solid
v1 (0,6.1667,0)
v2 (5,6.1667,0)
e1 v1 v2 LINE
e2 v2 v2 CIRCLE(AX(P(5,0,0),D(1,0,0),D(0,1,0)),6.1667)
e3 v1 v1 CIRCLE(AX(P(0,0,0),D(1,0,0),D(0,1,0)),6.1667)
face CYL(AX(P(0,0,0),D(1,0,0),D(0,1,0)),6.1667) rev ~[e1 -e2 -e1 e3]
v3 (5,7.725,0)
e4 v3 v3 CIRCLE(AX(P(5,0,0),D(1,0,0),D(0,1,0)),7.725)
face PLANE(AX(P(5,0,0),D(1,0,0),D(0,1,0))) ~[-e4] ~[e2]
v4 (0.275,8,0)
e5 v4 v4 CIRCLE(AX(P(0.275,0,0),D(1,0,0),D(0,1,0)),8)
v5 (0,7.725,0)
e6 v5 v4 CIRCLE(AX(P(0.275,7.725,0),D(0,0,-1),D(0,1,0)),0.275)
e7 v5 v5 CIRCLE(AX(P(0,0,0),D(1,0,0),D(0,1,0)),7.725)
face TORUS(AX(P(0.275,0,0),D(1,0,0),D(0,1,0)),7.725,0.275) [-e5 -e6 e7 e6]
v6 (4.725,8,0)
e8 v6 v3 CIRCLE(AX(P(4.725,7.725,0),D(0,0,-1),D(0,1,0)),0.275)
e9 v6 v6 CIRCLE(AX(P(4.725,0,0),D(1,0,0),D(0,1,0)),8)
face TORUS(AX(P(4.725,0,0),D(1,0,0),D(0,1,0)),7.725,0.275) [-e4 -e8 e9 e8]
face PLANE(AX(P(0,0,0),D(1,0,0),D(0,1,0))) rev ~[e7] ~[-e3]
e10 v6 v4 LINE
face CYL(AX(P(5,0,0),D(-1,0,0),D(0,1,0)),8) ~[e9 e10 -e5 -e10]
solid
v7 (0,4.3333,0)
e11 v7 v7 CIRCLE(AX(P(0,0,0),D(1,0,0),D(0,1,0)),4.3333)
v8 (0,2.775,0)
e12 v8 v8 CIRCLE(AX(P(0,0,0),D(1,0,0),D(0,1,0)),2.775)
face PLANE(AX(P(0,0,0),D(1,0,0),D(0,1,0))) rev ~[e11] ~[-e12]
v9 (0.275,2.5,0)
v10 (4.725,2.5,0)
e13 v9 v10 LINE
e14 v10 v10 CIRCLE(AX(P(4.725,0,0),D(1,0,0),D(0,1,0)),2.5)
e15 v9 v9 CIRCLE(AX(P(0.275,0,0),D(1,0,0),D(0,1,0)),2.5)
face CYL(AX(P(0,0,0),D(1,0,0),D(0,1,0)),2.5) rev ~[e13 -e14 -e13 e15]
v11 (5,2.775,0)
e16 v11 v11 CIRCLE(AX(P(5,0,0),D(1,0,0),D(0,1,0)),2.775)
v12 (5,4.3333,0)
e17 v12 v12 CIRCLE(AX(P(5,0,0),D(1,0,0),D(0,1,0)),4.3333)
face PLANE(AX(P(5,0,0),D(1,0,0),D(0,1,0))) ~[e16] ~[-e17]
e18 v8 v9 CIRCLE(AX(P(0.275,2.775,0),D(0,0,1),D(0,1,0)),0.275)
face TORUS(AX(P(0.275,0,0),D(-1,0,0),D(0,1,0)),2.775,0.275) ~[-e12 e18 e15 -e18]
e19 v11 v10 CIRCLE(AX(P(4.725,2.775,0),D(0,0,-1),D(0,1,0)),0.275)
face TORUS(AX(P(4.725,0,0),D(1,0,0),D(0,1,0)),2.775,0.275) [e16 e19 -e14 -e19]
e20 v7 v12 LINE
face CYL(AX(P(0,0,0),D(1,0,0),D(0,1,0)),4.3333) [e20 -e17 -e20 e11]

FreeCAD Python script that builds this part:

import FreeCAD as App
import Part
import Sketcher
Q = App.Units.Quantity


def edges_at(feature, points):
    """Names of the edges that pass closest to the given points."""
    edges = feature.Shape.Edges
    near = lambda p: min(range(len(edges)), key=lambda i: edges[i].distToShape(Part.Vertex(*p))[0])
    return sorted({f"Edge{near(p) + 1}" for p in points})

doc = App.newDocument("Part")
body = doc.addObject("PartDesign::Body", "Body")
body.AllowCompound = True

# Sketch on XY plane
sketch1 = body.newObject("Sketcher::SketchObject", "Sketch")
sketch1.AttachmentSupport = (doc.getObject("XY_Plane"), [""])
sketch1.MapMode = "FlatFace"
sketch1.addGeometry([
    Part.LineSegment(App.Vector(0, 4.3333, 0), App.Vector(0, 2.5, 0)),  # 0
    Part.LineSegment(App.Vector(0, 2.5, 0), App.Vector(5, 2.5, 0)),  # 1
    Part.LineSegment(App.Vector(5, 2.5, 0), App.Vector(5, 4.3333, 0)),  # 2
    Part.LineSegment(App.Vector(5, 4.3333, 0), App.Vector(0, 4.3333, 0)),  # 3
    Part.LineSegment(App.Vector(0, 8, 0), App.Vector(0, 6.1667, 0)),  # 4
    Part.LineSegment(App.Vector(0, 6.1667, 0), App.Vector(5, 6.1667, 0)),  # 5
    Part.LineSegment(App.Vector(5, 6.1667, 0), App.Vector(5, 8, 0)),  # 6
    Part.LineSegment(App.Vector(5, 8, 0), App.Vector(0, 8, 0)),  # 7
], False)
sketch1.addConstraint([
    Sketcher.Constraint("Coincident", 0, 2, 1, 1),
    Sketcher.Constraint("Coincident", 1, 2, 2, 1),
    Sketcher.Constraint("Coincident", 2, 2, 3, 1),
    Sketcher.Constraint("Coincident", 3, 2, 0, 1),
    Sketcher.Constraint("Coincident", 4, 2, 5, 1),
    Sketcher.Constraint("Coincident", 5, 2, 6, 1),
    Sketcher.Constraint("Coincident", 6, 2, 7, 1),
    Sketcher.Constraint("Coincident", 7, 2, 4, 1),
    Sketcher.Constraint("Vertical", 0),
    Sketcher.Constraint("Horizontal", 1),
    Sketcher.Constraint("Vertical", 2),
    Sketcher.Constraint("Horizontal", 3),
    Sketcher.Constraint("Vertical", 4),
    Sketcher.Constraint("Horizontal", 5),
    Sketcher.Constraint("Vertical", 6),
    Sketcher.Constraint("Horizontal", 7),
    Sketcher.Constraint("PointOnObject", 0, 2, -2),
    Sketcher.Constraint("PointOnObject", 4, 2, -2),
    Sketcher.Constraint("Vertical", 2, 2, 5, 2),
    Sketcher.Constraint("Equal", 2, 4),
    Sketcher.Constraint("DistanceX", 1, 1, 1, 2, Q("5 mm")),
    Sketcher.Constraint("DistanceY", -1, 1, 6, 2, Q("8 mm")),
    Sketcher.Constraint("DistanceY", -1, 1, 0, 2, Q("2.5 mm")),
    Sketcher.Constraint("DistanceY", 0, 2, 0, 1, Q("1.8333 mm")),
])
revolution = body.newObject("PartDesign::Revolution", "Revolution")
revolution.Profile = sketch1
revolution.ReferenceAxis = (sketch1, ["H_Axis"])
revolution.Angle = 360
doc.recompute()

fillet = body.newObject("PartDesign::Fillet", "Fillet")
fillet.Base = (revolution, edges_at(revolution, [
    (0, -8, 0),
    (5, -8, 0),
    (0, -2.5, 0),
    (5, -2.5, 0),
]))
fillet.Radius = 0.275

doc.recompute()
